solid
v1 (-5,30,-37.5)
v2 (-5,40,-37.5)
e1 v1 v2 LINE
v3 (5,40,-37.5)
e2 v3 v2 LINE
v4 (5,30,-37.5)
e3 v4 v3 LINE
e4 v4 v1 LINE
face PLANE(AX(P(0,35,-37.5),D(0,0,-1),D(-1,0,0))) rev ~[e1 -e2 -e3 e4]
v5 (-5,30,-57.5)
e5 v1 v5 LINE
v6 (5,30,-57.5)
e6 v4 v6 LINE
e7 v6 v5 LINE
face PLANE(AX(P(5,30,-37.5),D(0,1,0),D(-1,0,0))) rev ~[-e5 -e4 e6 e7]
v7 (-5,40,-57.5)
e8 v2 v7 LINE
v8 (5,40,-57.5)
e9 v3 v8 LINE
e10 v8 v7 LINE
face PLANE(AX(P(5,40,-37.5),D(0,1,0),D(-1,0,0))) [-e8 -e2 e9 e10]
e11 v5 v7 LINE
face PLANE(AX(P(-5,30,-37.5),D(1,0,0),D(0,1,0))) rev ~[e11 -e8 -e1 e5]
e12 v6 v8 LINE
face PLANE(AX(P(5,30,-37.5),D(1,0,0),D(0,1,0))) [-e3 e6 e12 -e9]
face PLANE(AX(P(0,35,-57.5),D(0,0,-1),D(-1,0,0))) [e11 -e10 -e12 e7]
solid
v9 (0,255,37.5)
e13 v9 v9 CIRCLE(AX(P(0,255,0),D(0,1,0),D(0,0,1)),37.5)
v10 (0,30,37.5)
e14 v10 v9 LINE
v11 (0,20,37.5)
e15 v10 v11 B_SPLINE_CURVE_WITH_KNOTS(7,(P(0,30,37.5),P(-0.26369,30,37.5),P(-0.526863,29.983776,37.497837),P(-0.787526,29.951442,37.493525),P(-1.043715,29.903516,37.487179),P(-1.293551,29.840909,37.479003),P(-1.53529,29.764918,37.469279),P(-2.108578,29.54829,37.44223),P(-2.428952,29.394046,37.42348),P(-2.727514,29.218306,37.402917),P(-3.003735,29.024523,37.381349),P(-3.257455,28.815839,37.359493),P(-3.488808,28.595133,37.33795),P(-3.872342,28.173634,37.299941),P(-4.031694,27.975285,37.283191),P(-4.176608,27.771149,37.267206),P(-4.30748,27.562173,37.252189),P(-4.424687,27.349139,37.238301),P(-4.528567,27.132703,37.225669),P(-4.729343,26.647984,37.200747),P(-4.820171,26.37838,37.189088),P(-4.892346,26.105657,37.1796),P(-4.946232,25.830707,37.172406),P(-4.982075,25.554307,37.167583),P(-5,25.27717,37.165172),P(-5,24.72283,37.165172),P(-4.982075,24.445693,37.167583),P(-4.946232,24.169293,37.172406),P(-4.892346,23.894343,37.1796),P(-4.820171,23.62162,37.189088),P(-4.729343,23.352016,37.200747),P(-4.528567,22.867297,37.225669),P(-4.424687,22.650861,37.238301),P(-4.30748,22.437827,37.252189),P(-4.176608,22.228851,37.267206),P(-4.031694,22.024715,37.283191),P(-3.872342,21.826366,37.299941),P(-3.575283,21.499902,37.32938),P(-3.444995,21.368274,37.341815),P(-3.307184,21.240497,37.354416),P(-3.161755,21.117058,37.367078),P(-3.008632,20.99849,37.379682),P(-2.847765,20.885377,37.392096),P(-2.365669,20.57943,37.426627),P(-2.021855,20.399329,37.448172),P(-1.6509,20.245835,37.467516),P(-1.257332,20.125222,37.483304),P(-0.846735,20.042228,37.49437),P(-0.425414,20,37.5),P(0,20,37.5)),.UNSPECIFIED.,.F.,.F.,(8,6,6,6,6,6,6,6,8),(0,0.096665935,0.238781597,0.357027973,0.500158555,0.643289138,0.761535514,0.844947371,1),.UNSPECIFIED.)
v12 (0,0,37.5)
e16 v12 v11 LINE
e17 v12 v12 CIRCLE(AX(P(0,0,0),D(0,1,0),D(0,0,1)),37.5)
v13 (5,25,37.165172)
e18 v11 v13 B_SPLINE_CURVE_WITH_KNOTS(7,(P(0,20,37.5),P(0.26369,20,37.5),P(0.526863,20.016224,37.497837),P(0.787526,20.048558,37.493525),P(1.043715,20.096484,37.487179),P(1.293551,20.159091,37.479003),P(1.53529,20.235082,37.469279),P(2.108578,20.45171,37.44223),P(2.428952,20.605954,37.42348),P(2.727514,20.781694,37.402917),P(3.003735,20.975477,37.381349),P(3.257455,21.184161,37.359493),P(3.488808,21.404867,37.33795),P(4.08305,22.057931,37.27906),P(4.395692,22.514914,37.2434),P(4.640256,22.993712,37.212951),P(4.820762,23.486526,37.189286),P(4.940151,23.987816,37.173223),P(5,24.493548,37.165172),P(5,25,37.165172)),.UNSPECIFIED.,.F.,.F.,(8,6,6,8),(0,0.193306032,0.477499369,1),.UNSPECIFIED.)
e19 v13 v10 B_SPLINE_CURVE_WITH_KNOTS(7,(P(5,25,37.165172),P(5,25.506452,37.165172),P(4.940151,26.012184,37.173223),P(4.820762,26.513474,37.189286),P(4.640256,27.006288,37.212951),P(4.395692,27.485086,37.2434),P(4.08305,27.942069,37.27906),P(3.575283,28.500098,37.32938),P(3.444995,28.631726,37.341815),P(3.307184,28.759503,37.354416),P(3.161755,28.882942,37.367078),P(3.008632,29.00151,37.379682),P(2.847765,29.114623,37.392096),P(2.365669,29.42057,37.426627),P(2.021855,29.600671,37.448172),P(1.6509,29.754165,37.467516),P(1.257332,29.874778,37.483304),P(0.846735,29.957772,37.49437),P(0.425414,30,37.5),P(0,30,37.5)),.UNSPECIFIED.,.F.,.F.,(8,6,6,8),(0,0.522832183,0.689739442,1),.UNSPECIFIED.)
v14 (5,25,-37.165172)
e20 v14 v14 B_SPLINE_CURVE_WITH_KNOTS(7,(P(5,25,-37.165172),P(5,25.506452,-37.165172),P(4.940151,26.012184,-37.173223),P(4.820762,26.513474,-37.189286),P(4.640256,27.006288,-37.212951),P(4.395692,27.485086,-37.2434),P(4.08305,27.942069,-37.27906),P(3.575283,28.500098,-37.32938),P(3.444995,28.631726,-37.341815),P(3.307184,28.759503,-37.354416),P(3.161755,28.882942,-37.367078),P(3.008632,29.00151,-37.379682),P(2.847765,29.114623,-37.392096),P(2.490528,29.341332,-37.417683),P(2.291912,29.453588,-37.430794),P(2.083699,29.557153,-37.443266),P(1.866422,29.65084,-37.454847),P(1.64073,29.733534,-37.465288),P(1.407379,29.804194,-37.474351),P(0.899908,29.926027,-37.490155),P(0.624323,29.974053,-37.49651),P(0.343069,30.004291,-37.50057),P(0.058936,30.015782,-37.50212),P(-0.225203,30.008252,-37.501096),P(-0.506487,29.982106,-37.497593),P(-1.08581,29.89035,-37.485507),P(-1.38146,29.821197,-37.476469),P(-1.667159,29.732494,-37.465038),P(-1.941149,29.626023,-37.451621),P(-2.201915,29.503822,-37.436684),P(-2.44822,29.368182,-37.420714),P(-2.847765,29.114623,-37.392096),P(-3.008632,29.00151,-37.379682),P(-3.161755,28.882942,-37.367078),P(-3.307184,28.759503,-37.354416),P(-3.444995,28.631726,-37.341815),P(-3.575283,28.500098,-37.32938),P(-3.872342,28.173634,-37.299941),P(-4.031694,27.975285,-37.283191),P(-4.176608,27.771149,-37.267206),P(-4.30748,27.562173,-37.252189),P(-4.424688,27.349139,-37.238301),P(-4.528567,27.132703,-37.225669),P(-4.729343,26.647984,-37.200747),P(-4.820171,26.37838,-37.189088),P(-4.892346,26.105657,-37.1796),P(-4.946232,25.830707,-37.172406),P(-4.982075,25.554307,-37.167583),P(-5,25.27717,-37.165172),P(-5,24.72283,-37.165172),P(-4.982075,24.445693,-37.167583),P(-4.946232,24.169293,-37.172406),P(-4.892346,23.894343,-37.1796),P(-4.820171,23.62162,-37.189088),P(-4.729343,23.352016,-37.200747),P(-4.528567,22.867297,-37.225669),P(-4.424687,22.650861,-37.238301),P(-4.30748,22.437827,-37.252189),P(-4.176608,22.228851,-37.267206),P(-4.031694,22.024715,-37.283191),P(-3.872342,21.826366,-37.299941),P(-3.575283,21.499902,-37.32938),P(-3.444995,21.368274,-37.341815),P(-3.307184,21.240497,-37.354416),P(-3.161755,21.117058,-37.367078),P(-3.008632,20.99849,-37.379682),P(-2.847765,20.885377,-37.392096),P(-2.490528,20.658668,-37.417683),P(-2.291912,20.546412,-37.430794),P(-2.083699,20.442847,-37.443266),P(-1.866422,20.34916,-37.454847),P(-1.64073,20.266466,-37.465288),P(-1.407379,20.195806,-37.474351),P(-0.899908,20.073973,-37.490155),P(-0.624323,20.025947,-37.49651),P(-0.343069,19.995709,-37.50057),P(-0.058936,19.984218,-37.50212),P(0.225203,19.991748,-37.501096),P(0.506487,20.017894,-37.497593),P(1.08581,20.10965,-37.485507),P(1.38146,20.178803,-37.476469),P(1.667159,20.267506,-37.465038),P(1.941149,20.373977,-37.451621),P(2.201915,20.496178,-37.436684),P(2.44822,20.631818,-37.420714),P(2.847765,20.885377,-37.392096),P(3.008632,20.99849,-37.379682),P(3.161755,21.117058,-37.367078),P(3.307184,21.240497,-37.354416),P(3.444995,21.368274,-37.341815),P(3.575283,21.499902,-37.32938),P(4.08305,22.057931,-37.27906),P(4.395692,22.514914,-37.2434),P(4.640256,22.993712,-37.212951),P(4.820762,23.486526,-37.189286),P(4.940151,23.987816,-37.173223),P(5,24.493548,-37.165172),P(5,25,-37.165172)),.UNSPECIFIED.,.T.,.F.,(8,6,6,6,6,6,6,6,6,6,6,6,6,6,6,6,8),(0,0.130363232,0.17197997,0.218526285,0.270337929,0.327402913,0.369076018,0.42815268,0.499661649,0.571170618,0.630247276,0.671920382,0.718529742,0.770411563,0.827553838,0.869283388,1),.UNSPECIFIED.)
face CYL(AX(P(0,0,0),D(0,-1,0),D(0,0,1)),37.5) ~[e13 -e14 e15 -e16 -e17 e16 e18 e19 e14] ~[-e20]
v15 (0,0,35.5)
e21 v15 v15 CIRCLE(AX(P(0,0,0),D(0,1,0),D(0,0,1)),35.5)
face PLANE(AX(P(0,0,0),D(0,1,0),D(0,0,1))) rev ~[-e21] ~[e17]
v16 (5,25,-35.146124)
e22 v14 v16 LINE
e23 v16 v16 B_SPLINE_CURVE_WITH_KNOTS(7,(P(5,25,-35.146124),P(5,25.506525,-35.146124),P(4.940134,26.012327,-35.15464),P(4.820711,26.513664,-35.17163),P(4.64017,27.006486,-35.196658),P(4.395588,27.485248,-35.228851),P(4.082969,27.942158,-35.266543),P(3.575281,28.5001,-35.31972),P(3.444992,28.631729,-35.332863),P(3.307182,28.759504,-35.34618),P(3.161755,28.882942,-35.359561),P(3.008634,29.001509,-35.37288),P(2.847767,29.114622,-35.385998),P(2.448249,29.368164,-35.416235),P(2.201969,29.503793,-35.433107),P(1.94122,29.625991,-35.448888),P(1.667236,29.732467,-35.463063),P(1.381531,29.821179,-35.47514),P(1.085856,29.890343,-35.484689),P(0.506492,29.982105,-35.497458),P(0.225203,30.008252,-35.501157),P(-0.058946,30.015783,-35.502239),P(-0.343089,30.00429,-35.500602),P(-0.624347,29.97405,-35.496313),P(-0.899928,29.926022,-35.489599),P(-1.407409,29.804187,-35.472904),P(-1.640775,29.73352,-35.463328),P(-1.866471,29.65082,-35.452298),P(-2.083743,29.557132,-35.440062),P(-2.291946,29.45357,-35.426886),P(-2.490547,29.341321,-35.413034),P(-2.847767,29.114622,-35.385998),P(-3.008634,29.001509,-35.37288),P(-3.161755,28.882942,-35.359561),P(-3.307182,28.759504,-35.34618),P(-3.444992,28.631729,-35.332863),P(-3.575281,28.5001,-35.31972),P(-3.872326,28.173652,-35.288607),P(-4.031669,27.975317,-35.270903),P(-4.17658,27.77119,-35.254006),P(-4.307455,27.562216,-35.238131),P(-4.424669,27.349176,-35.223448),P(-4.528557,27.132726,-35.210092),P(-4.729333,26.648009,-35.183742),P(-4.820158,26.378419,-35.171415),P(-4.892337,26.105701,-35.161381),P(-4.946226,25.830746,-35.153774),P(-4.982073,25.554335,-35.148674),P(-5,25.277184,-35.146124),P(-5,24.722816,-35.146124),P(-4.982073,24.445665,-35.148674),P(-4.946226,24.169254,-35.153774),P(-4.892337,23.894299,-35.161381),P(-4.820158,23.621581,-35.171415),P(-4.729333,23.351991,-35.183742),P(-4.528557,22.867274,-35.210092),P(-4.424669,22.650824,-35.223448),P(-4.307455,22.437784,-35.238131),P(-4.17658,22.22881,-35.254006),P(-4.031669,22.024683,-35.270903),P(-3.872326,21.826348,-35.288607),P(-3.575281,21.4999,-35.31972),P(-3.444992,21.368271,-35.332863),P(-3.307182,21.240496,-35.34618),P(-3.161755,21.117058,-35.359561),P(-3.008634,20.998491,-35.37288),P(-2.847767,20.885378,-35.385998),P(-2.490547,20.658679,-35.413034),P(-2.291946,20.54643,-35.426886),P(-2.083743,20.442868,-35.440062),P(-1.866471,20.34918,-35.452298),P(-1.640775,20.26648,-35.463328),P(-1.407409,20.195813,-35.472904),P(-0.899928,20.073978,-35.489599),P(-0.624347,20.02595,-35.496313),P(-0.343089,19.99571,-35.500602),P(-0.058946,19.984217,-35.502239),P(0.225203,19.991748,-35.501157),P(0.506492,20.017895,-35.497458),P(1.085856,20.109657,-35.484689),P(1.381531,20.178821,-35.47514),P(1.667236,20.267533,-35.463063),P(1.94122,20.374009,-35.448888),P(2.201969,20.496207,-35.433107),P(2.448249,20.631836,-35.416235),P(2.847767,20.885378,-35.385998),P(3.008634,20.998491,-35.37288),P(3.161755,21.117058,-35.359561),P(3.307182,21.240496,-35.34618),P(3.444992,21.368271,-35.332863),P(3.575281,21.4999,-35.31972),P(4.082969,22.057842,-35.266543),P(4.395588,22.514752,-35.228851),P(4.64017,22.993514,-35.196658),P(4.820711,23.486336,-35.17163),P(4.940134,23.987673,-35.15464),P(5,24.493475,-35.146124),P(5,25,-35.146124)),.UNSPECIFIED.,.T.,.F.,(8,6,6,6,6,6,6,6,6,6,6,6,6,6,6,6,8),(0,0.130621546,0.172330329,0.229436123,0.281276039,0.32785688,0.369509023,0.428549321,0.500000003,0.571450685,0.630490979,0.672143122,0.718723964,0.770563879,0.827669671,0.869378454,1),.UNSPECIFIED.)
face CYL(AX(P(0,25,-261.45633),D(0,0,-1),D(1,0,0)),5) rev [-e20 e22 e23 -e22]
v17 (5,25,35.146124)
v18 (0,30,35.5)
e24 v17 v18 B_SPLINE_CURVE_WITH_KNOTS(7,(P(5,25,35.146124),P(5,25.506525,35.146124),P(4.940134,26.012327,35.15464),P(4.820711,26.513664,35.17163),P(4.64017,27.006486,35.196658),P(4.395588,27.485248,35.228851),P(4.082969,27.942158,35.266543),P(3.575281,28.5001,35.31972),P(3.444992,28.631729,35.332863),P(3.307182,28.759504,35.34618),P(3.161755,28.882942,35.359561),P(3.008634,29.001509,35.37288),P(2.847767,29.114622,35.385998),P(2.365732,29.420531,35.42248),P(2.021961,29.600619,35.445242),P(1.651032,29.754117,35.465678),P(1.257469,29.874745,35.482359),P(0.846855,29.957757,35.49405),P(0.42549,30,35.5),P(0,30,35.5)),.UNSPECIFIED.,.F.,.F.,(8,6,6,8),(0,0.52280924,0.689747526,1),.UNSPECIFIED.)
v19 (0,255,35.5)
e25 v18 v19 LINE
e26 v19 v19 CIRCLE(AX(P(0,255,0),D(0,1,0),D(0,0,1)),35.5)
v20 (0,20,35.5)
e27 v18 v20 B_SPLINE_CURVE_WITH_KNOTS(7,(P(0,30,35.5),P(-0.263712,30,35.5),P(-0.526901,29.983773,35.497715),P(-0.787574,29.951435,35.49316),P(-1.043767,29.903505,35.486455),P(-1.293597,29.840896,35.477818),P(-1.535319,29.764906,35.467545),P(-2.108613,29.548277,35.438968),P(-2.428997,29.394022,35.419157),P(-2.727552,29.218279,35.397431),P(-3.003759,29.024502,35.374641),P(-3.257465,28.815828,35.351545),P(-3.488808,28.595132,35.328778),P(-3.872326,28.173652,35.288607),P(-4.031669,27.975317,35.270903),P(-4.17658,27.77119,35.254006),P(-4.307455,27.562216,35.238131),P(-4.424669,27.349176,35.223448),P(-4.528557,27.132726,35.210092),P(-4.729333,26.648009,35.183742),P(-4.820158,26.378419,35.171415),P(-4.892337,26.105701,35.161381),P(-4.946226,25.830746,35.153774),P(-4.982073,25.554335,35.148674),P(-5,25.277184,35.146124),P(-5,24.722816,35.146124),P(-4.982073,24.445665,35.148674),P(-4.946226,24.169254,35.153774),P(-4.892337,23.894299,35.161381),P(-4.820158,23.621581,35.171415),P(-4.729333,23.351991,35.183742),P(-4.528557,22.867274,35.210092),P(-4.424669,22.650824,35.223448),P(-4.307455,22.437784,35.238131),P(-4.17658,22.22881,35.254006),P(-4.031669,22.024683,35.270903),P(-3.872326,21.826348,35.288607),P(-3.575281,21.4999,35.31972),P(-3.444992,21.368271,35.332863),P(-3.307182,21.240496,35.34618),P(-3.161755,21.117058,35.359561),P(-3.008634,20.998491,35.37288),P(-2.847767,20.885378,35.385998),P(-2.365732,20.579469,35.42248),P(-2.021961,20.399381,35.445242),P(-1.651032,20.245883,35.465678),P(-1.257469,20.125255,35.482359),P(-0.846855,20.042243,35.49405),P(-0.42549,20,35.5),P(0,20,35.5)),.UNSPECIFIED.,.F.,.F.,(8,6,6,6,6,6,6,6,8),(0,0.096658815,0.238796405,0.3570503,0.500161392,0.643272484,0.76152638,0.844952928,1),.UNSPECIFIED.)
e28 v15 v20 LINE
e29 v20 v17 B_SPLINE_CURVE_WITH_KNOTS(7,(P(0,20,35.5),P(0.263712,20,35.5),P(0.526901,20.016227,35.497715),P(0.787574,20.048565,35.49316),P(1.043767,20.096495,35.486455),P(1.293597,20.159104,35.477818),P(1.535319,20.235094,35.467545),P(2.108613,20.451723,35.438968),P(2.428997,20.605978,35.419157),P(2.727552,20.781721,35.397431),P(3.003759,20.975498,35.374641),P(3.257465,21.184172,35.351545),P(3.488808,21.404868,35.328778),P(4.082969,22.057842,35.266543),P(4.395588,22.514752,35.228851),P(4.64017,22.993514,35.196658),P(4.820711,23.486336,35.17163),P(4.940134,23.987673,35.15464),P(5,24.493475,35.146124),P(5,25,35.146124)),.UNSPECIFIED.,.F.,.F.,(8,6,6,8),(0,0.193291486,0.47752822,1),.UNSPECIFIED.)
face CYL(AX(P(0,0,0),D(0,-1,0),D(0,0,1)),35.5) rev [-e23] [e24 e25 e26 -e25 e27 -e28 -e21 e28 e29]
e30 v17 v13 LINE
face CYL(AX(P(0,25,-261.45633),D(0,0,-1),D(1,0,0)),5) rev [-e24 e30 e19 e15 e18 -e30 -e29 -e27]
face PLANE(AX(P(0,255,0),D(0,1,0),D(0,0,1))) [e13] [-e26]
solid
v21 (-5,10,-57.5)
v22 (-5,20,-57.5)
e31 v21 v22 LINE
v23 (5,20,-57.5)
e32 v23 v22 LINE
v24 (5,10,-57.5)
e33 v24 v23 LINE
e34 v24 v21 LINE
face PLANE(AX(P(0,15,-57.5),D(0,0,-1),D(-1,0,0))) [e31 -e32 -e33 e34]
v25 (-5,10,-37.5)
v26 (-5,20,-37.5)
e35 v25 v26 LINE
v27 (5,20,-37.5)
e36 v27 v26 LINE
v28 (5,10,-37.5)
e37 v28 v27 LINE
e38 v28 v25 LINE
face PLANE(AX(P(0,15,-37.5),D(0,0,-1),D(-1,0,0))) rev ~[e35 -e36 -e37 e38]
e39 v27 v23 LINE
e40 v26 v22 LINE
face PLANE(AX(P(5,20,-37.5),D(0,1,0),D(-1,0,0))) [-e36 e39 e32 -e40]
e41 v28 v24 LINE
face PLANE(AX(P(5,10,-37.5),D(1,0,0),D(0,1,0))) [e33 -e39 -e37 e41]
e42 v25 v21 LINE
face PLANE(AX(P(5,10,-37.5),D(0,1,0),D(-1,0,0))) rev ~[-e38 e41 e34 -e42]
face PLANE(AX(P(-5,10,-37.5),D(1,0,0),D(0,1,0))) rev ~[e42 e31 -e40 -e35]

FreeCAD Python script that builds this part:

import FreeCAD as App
import Part
import Sketcher
from FreeCAD import Vector
Q = App.Units.Quantity


def add_polygon(sketch, points):
    """Adds a closed chain of lines whose ends are joined by coincident constraints."""
    first, n = sketch.GeometryCount, len(points)
    for a, b in zip(points, points[1:] + points[:1]):
        sketch.addGeometry(Part.LineSegment(App.Vector(*a, 0), App.Vector(*b, 0)), False)
    for i in range(n):
        sketch.addConstraint(Sketcher.Constraint("Coincident", first + i, 2, first + (i + 1) % n, 1))

doc = App.newDocument("Part")
params = doc.addObject("Spreadsheet::Sheet", "Params")
for row, (alias, value) in enumerate([
    ("sketch1_diameter", "75 mm"),
    ("sketch1_diameter2", "71 mm"),
    ("pad1_length", "255 mm"),
    ("sketch2_diameter", "10 mm"),
    ("sketch3_width", "10 mm"),
    ("pad2_length", "20 mm"),
    ("sketch4_width", "10 mm"),
    ("pad3_length", "20 mm"),
], start=1):
    params.set(f"A{row}", alias)
    params.set(f"B{row}", "=" + value)
    params.setAlias(f"B{row}", alias)

body = doc.addObject("PartDesign::Body", "Body")

sketch1 = body.newObject("Sketcher::SketchObject", "Sketch")
sketch1.AttachmentSupport = (doc.getObject("XZ_Plane"), [""])
sketch1.MapMode = "FlatFace"
sketch1.addGeometry([
    Part.Circle(Vector(0, 0, 0), Vector(0, 0, 1), 38),
    Part.Circle(Vector(0, 0, 0), Vector(0, 0, 1), 36),
], False)
sketch1.addConstraint([
    Sketcher.Constraint("Coincident", 0, 3, -1, 1),
    Sketcher.Constraint("Coincident", 1, 3, -1, 1),
    Sketcher.Constraint("Diameter", 0, Q("75 mm")),
    Sketcher.Constraint("Diameter", 1, Q("71 mm")),
])
sketch1.setExpression("Constraints[2]", "Params.sketch1_diameter")
sketch1.setExpression("Constraints[3]", "Params.sketch1_diameter2")
pad1 = body.newObject("PartDesign::Pad", "Pad")
pad1.Profile = sketch1
pad1.setExpression("Length", "Params.pad1_length")
pad1.Reversed = True

sketch2 = body.newObject("Sketcher::SketchObject", "Sketch001")
sketch2.AttachmentSupport = (doc.getObject("XY_Plane"), [""])
sketch2.MapMode = "FlatFace"
sketch2.addGeometry(Part.Circle(Vector(0, 25, 0), Vector(0, 0, 1), 5), False)
sketch2.addConstraint([
    Sketcher.Constraint("PointOnObject", 0, 3, -2),
    Sketcher.Constraint("Diameter", 0, Q("10 mm")),
    Sketcher.Constraint("DistanceY", -1, 1, 0, 3, Q("25 mm")),
])
sketch2.setExpression("Constraints[1]", "Params.sketch2_diameter")
pocket1 = body.newObject("PartDesign::Pocket", "Pocket")
pocket1.Profile = sketch2
pocket1.Type = "ThroughAll"
pocket1.Midplane = True
body2 = doc.addObject("PartDesign::Body", "Body001")

sketch3 = body2.newObject("Sketcher::SketchObject", "Sketch002")
sketch3.AttachmentSupport = (doc.getObject("XY_Plane001"), [""])
sketch3.MapMode = "FlatFace"
sketch3.AttachmentOffset = App.Placement(Vector(0, 0, -37.5), App.Rotation())
add_polygon(sketch3, [(5, 40), (5, 30), (-5, 30), (-5, 40)])
sketch3.addConstraint([
    Sketcher.Constraint("Vertical", 0),
    Sketcher.Constraint("Horizontal", 1),
    Sketcher.Constraint("Vertical", 2),
    Sketcher.Constraint("Horizontal", 3),
    Sketcher.Constraint("Equal", 3, 0),
    Sketcher.Constraint("DistanceX", 1, 2, 1, 1, Q("10 mm")),
    Sketcher.Constraint("DistanceX", -1, 1, 0, 2, Q("5 mm")),
    Sketcher.Constraint("DistanceY", -1, 1, 0, 2, Q("30 mm")),
])
sketch3.setExpression("Constraints[9]", "Params.sketch3_width")
pad2 = body2.newObject("PartDesign::Pad", "Pad001")
pad2.Profile = sketch3
pad2.setExpression("Length", "Params.pad2_length")
pad2.Reversed = True
body3 = doc.addObject("PartDesign::Body", "Body002")

sketch4 = body3.newObject("Sketcher::SketchObject", "Sketch003")
sketch4.AttachmentSupport = (doc.getObject("XY_Plane002"), [""])
sketch4.MapMode = "FlatFace"
sketch4.AttachmentOffset = App.Placement(Vector(0, 0, -37.5), App.Rotation())
add_polygon(sketch4, [(5, 20), (5, 10), (-5, 10), (-5, 20)])
sketch4.addConstraint([
    Sketcher.Constraint("Vertical", 0),
    Sketcher.Constraint("Horizontal", 1),
    Sketcher.Constraint("Vertical", 2),
    Sketcher.Constraint("Horizontal", 3),
    Sketcher.Constraint("Equal", 3, 0),
    Sketcher.Constraint("DistanceX", 1, 2, 1, 1, Q("10 mm")),
    Sketcher.Constraint("DistanceX", -1, 1, 0, 2, Q("5 mm")),
    Sketcher.Constraint("DistanceY", -1, 1, 0, 2, Q("10 mm")),
])
sketch4.setExpression("Constraints[9]", "Params.sketch4_width")
pad3 = body3.newObject("PartDesign::Pad", "Pad002")
pad3.Profile = sketch4
pad3.setExpression("Length", "Params.pad3_length")
pad3.Reversed = True

doc.recompute()
